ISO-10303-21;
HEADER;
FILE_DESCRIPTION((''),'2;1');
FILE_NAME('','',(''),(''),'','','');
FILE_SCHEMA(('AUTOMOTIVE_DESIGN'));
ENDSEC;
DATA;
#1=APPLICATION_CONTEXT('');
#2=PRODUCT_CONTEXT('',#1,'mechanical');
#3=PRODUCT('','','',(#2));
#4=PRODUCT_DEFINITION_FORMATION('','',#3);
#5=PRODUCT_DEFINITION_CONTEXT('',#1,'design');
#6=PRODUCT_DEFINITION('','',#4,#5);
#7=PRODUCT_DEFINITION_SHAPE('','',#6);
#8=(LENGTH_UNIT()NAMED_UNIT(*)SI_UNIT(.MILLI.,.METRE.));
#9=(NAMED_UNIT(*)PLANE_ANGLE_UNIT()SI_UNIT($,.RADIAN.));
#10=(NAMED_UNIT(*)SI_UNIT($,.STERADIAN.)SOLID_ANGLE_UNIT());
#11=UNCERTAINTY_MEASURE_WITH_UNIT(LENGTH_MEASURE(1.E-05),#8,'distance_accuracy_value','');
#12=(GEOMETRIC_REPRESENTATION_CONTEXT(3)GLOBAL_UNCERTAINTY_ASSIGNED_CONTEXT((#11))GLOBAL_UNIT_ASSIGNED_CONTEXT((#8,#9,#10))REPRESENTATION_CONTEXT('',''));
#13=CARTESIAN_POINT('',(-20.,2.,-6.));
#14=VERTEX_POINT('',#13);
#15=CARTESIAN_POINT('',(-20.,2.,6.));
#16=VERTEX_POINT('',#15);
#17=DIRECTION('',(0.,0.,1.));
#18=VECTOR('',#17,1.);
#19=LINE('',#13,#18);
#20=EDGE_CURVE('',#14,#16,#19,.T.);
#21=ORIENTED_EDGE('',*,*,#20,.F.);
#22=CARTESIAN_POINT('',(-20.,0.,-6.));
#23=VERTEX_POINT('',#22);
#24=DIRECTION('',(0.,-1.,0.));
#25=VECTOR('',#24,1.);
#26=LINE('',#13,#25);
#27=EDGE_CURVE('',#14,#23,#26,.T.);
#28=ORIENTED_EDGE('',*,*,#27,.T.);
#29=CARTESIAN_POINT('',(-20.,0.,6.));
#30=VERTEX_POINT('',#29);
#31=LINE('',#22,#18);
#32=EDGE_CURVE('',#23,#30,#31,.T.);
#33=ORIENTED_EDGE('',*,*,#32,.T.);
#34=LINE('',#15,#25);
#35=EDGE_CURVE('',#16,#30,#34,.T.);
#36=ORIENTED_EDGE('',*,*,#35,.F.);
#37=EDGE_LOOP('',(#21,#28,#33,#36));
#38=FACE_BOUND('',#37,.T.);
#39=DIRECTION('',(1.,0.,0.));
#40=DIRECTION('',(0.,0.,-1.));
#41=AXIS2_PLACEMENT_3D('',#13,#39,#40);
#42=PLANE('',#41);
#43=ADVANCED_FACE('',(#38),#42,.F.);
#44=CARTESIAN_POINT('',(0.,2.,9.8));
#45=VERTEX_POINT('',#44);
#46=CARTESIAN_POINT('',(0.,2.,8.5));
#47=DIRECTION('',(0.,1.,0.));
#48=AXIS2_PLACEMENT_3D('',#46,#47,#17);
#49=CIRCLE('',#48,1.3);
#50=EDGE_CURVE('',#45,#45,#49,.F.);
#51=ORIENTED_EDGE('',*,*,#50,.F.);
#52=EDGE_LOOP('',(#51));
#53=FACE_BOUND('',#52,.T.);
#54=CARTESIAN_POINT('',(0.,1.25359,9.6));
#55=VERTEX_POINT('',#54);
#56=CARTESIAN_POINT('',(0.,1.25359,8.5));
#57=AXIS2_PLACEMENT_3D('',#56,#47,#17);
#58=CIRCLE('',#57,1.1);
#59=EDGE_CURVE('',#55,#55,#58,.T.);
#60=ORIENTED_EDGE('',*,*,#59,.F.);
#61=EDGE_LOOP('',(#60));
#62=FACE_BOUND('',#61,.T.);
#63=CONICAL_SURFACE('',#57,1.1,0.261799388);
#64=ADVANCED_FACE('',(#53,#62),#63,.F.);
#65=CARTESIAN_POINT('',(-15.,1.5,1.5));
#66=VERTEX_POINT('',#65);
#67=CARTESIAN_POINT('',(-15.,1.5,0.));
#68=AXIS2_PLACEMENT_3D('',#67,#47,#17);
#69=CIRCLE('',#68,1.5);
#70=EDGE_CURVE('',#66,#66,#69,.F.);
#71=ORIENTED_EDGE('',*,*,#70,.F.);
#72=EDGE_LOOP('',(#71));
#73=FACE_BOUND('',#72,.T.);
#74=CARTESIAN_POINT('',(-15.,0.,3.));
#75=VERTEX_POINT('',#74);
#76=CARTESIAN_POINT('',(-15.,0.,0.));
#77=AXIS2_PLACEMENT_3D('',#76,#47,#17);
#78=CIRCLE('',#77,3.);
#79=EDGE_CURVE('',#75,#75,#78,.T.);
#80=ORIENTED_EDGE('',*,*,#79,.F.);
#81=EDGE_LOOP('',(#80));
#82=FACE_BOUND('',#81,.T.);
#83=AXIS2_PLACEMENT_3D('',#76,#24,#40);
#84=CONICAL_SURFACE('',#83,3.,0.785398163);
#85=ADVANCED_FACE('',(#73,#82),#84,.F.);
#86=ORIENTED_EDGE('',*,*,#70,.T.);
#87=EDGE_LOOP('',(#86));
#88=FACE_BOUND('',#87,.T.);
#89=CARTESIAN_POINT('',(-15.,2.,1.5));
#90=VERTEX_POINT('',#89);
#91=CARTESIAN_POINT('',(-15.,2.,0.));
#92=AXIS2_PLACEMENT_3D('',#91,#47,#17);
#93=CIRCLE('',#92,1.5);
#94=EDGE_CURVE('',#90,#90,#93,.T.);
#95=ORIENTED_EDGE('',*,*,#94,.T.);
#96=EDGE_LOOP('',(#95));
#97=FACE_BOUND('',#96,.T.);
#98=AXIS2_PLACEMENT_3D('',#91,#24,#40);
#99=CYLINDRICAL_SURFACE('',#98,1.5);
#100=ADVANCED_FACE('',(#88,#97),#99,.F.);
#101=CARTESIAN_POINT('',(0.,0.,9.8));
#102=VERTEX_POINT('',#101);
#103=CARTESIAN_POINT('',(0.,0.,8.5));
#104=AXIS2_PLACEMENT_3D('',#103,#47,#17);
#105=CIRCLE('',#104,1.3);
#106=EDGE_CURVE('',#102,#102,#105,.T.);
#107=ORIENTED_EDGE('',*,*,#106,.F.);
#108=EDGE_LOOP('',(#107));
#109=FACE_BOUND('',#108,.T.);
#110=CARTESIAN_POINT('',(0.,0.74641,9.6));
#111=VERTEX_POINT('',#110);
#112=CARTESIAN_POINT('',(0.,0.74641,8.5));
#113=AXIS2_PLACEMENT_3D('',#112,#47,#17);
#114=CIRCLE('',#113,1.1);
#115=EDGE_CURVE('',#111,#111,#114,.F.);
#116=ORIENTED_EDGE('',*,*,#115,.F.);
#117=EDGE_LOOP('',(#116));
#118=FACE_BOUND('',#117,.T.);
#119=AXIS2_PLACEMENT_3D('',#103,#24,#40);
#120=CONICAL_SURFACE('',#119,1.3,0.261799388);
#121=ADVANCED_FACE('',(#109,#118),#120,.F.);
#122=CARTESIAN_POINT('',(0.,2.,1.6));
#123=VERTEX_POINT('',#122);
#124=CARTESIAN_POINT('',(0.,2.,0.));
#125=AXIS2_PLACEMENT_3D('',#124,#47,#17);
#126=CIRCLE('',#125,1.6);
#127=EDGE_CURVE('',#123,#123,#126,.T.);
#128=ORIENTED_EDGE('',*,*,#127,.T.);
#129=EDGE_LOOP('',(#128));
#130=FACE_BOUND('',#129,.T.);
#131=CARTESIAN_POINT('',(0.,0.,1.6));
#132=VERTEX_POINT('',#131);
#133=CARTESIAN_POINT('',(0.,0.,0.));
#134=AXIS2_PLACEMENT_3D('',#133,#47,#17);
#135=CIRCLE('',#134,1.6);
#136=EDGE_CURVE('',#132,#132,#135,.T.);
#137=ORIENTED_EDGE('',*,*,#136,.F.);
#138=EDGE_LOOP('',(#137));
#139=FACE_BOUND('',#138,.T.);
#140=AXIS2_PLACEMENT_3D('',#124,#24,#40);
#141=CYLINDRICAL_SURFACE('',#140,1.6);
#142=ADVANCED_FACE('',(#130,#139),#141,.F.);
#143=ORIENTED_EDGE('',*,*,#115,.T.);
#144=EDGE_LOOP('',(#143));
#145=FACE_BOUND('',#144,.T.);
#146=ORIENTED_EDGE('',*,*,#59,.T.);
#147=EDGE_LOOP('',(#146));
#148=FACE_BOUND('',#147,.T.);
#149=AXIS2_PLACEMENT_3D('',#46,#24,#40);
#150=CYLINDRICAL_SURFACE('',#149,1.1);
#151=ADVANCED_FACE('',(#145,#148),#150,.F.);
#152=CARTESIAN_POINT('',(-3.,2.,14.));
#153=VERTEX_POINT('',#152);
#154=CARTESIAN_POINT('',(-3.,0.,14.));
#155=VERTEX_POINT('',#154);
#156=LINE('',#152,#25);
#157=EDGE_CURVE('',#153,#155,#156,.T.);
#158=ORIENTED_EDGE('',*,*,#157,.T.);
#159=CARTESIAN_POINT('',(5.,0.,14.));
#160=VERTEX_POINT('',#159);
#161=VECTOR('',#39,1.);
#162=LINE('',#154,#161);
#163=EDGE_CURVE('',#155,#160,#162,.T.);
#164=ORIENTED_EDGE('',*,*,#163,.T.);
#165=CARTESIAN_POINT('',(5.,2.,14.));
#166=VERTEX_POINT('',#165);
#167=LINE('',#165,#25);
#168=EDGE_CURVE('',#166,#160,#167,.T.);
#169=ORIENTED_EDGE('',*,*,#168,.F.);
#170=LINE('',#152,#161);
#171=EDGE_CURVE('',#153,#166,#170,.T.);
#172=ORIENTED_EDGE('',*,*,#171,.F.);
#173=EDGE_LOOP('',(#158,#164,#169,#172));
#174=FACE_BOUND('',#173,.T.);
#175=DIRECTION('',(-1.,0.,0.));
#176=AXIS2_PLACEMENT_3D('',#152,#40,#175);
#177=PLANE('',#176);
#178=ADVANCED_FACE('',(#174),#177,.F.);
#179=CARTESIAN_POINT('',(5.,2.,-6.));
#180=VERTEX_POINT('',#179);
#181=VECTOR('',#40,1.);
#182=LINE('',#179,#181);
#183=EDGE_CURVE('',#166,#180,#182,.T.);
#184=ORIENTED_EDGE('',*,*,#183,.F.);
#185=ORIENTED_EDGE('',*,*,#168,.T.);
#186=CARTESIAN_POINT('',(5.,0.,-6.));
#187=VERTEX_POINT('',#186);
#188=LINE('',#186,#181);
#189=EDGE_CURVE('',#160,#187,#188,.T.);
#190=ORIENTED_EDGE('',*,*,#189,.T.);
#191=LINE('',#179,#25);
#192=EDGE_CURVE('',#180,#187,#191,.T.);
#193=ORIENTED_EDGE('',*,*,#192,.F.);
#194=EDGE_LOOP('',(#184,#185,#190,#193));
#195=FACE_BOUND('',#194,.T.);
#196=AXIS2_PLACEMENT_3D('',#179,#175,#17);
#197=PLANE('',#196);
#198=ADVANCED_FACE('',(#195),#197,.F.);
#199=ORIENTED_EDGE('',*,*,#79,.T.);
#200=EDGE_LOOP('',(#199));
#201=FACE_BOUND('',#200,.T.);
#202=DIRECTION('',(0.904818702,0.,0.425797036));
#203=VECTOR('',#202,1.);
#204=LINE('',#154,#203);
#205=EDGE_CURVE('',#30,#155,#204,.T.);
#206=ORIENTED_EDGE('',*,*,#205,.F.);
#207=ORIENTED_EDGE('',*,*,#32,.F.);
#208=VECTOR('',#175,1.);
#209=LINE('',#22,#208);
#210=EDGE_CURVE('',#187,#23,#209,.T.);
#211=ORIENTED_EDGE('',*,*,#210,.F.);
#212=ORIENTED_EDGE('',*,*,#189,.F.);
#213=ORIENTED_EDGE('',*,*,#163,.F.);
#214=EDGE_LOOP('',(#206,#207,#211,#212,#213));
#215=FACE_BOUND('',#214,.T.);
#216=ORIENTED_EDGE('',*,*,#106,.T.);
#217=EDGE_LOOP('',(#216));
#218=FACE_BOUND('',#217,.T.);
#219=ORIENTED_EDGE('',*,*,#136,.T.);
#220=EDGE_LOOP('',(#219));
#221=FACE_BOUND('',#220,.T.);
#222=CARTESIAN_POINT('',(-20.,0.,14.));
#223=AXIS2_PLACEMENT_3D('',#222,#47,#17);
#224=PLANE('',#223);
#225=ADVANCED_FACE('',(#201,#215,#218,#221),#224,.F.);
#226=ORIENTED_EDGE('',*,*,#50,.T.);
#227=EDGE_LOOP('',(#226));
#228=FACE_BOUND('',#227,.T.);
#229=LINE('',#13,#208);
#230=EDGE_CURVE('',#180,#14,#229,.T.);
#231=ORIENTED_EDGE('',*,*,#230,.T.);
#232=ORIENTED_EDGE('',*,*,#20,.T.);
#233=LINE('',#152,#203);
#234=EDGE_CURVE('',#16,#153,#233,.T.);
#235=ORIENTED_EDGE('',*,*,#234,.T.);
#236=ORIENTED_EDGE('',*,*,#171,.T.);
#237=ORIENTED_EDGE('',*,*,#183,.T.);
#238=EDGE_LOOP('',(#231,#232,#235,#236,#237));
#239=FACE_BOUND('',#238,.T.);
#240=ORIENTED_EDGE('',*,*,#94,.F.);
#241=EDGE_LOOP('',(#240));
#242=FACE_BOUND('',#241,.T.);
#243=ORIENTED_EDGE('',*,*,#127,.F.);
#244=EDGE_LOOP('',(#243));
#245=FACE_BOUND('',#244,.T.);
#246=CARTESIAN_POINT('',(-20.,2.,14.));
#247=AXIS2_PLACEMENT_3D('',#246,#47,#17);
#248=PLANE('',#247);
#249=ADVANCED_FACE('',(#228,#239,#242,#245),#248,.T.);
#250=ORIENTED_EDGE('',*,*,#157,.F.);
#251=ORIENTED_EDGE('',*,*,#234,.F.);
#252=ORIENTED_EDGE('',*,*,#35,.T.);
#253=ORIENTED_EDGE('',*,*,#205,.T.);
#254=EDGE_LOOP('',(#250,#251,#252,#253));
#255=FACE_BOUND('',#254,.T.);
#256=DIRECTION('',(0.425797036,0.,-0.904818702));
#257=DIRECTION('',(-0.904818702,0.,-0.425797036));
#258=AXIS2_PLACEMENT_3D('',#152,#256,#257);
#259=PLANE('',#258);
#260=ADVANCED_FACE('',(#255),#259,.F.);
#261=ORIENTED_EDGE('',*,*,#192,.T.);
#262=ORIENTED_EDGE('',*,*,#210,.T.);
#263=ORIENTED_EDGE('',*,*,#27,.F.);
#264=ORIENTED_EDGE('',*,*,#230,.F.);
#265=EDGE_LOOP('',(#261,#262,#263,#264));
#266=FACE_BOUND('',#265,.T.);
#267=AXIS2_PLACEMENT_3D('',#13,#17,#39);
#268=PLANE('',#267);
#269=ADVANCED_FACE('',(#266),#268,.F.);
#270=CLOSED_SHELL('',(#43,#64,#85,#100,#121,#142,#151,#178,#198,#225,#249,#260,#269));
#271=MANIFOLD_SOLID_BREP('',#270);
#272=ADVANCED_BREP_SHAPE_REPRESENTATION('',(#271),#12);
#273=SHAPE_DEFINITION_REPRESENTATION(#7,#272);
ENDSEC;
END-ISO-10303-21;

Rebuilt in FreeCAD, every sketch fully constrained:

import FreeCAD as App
import Part
import Sketcher


def edges_at(feature, points):
    """Names of the edges that pass closest to the given points."""
    edges = feature.Shape.Edges
    near = lambda p: min(range(len(edges)), key=lambda i: edges[i].distToShape(Part.Vertex(*p))[0])
    return sorted({f"Edge{near(p) + 1}" for p in points})


def add_polygon(sketch, points):
    """Adds a closed chain of lines whose ends are joined by coincident constraints."""
    first, n = sketch.GeometryCount, len(points)
    for a, b in zip(points, points[1:] + points[:1]):
        sketch.addGeometry(Part.LineSegment(App.Vector(*a, 0), App.Vector(*b, 0)), False)
    for i in range(n):
        sketch.addConstraint(Sketcher.Constraint("Coincident", first + i, 2, first + (i + 1) % n, 1))

doc = App.newDocument("Part")
body = doc.addObject("PartDesign::Body", "Body")

sketch1 = doc.addObject("Sketcher::SketchObject", "Sketch")
body.addObject(sketch1)
sketch1.AttachmentSupport = (doc.XZ_Plane, [""])
sketch1.MapMode = "FlatFace"
add_polygon(sketch1, [(5, -6), (-20, -6), (-20, 6), (-3, 14), (5, 14)])
sketch1.addGeometry(Part.Circle(App.Vector(0, 8.5, 0), App.Vector(0, 0, 1), 1.1), False)
sketch1.addGeometry(Part.Circle(App.Vector(0, 0, 0), App.Vector(0, 0, 1), 1.6), False)
sketch1.addGeometry(Part.Circle(App.Vector(-15, 0, 0), App.Vector(0, 0, 1), 1.5), False)
sketch1.addConstraint([
    Sketcher.Constraint("Horizontal", 0),
    Sketcher.Constraint("Vertical", 1),
    Sketcher.Constraint("Horizontal", 3),
    Sketcher.Constraint("Vertical", 4),
    Sketcher.Constraint("Coincident", 6, 3, -1, 1),
    Sketcher.Constraint("PointOnObject", 5, 3, -2),
    Sketcher.Constraint("PointOnObject", 7, 3, -1),
    Sketcher.Constraint("Diameter", 7, 3.0),
    Sketcher.Constraint("Diameter", 5, 2.2),
    Sketcher.Constraint("Diameter", 6, 3.2),
    Sketcher.Constraint("DistanceX", 0, 2, 0, 1, 25.0),
    Sketcher.Constraint("DistanceX", 3, 1, 3, 2, 8.0),
    Sketcher.Constraint("DistanceY", 1, 1, 1, 2, 12.0),
    Sketcher.Constraint("DistanceY", 4, 2, 4, 1, 20.0),
    Sketcher.Constraint("DistanceX", 7, 3, -1, 1, 15.0),
    Sketcher.Constraint("DistanceX", 0, 2, -1, 1, 20.0),
    Sketcher.Constraint("DistanceY", 0, 2, -1, 1, 6.0),
    Sketcher.Constraint("DistanceY", -1, 1, 5, 3, 8.5),
])
pad1 = doc.addObject("PartDesign::Pad", "Pad")
body.addObject(pad1)
pad1.Profile = sketch1
pad1.Length = 2
pad1.Reversed = True
doc.recompute()

chamfer = doc.addObject("PartDesign::Chamfer", "Chamfer")
body.addObject(chamfer)
chamfer.Base = (pad1, edges_at(pad1, [(-15, 0, -1.5)]))
chamfer.Size = 1.5
doc.recompute()

chamfer2 = doc.addObject("PartDesign::Chamfer", "Chamfer001")
body.addObject(chamfer2)
chamfer2.Base = (chamfer, edges_at(chamfer, [(0, 0, 7.4)]))
chamfer2.ChamferType = "Two distances"
chamfer2.Size = 0.2
chamfer2.Size2 = 0.74641
doc.recompute()

chamfer3 = doc.addObject("PartDesign::Chamfer", "Chamfer002")
body.addObject(chamfer3)
chamfer3.Base = (chamfer2, edges_at(chamfer2, [(0, 2, 7.4)]))
chamfer3.ChamferType = "Two distances"
chamfer3.Size = 0.2
chamfer3.Size2 = 0.74641
chamfer3.FlipDirection = True

doc.recompute()
